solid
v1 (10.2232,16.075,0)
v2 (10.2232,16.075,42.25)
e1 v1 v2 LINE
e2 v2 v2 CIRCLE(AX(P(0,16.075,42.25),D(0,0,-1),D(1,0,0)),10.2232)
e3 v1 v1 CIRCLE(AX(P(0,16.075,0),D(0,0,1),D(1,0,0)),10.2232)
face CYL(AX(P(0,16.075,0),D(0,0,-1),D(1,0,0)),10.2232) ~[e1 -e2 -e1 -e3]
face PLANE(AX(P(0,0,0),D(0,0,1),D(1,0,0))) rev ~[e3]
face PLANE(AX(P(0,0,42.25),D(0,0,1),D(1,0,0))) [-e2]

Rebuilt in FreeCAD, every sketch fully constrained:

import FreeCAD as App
import Part
import Sketcher
from FreeCAD import Vector

doc = App.newDocument("Part")
body = doc.addObject("PartDesign::Body", "Body")

# Sketch on XY plane
sketch1 = doc.addObject("Sketcher::SketchObject", "Sketch")
body.addObject(sketch1)
sketch1.AttachmentSupport = (doc.XY_Plane, [""])
sketch1.MapMode = "FlatFace"
sketch1.addGeometry(Part.Circle(Vector(0, 16.075, 0), Vector(0, 0, 1), 10.2232), False)
sketch1.addConstraint(Sketcher.Constraint("PointOnObject", 0, 3, -2))
sketch1.addConstraint(Sketcher.Constraint("Diameter", 0, 20.4464))
sketch1.addConstraint(Sketcher.Constraint("DistanceY", -1, 1, 0, 3, 16.075))
pad1 = doc.addObject("PartDesign::Pad", "Pad")
body.addObject(pad1)
pad1.Profile = sketch1
pad1.Length = 42.25

doc.recompute()
